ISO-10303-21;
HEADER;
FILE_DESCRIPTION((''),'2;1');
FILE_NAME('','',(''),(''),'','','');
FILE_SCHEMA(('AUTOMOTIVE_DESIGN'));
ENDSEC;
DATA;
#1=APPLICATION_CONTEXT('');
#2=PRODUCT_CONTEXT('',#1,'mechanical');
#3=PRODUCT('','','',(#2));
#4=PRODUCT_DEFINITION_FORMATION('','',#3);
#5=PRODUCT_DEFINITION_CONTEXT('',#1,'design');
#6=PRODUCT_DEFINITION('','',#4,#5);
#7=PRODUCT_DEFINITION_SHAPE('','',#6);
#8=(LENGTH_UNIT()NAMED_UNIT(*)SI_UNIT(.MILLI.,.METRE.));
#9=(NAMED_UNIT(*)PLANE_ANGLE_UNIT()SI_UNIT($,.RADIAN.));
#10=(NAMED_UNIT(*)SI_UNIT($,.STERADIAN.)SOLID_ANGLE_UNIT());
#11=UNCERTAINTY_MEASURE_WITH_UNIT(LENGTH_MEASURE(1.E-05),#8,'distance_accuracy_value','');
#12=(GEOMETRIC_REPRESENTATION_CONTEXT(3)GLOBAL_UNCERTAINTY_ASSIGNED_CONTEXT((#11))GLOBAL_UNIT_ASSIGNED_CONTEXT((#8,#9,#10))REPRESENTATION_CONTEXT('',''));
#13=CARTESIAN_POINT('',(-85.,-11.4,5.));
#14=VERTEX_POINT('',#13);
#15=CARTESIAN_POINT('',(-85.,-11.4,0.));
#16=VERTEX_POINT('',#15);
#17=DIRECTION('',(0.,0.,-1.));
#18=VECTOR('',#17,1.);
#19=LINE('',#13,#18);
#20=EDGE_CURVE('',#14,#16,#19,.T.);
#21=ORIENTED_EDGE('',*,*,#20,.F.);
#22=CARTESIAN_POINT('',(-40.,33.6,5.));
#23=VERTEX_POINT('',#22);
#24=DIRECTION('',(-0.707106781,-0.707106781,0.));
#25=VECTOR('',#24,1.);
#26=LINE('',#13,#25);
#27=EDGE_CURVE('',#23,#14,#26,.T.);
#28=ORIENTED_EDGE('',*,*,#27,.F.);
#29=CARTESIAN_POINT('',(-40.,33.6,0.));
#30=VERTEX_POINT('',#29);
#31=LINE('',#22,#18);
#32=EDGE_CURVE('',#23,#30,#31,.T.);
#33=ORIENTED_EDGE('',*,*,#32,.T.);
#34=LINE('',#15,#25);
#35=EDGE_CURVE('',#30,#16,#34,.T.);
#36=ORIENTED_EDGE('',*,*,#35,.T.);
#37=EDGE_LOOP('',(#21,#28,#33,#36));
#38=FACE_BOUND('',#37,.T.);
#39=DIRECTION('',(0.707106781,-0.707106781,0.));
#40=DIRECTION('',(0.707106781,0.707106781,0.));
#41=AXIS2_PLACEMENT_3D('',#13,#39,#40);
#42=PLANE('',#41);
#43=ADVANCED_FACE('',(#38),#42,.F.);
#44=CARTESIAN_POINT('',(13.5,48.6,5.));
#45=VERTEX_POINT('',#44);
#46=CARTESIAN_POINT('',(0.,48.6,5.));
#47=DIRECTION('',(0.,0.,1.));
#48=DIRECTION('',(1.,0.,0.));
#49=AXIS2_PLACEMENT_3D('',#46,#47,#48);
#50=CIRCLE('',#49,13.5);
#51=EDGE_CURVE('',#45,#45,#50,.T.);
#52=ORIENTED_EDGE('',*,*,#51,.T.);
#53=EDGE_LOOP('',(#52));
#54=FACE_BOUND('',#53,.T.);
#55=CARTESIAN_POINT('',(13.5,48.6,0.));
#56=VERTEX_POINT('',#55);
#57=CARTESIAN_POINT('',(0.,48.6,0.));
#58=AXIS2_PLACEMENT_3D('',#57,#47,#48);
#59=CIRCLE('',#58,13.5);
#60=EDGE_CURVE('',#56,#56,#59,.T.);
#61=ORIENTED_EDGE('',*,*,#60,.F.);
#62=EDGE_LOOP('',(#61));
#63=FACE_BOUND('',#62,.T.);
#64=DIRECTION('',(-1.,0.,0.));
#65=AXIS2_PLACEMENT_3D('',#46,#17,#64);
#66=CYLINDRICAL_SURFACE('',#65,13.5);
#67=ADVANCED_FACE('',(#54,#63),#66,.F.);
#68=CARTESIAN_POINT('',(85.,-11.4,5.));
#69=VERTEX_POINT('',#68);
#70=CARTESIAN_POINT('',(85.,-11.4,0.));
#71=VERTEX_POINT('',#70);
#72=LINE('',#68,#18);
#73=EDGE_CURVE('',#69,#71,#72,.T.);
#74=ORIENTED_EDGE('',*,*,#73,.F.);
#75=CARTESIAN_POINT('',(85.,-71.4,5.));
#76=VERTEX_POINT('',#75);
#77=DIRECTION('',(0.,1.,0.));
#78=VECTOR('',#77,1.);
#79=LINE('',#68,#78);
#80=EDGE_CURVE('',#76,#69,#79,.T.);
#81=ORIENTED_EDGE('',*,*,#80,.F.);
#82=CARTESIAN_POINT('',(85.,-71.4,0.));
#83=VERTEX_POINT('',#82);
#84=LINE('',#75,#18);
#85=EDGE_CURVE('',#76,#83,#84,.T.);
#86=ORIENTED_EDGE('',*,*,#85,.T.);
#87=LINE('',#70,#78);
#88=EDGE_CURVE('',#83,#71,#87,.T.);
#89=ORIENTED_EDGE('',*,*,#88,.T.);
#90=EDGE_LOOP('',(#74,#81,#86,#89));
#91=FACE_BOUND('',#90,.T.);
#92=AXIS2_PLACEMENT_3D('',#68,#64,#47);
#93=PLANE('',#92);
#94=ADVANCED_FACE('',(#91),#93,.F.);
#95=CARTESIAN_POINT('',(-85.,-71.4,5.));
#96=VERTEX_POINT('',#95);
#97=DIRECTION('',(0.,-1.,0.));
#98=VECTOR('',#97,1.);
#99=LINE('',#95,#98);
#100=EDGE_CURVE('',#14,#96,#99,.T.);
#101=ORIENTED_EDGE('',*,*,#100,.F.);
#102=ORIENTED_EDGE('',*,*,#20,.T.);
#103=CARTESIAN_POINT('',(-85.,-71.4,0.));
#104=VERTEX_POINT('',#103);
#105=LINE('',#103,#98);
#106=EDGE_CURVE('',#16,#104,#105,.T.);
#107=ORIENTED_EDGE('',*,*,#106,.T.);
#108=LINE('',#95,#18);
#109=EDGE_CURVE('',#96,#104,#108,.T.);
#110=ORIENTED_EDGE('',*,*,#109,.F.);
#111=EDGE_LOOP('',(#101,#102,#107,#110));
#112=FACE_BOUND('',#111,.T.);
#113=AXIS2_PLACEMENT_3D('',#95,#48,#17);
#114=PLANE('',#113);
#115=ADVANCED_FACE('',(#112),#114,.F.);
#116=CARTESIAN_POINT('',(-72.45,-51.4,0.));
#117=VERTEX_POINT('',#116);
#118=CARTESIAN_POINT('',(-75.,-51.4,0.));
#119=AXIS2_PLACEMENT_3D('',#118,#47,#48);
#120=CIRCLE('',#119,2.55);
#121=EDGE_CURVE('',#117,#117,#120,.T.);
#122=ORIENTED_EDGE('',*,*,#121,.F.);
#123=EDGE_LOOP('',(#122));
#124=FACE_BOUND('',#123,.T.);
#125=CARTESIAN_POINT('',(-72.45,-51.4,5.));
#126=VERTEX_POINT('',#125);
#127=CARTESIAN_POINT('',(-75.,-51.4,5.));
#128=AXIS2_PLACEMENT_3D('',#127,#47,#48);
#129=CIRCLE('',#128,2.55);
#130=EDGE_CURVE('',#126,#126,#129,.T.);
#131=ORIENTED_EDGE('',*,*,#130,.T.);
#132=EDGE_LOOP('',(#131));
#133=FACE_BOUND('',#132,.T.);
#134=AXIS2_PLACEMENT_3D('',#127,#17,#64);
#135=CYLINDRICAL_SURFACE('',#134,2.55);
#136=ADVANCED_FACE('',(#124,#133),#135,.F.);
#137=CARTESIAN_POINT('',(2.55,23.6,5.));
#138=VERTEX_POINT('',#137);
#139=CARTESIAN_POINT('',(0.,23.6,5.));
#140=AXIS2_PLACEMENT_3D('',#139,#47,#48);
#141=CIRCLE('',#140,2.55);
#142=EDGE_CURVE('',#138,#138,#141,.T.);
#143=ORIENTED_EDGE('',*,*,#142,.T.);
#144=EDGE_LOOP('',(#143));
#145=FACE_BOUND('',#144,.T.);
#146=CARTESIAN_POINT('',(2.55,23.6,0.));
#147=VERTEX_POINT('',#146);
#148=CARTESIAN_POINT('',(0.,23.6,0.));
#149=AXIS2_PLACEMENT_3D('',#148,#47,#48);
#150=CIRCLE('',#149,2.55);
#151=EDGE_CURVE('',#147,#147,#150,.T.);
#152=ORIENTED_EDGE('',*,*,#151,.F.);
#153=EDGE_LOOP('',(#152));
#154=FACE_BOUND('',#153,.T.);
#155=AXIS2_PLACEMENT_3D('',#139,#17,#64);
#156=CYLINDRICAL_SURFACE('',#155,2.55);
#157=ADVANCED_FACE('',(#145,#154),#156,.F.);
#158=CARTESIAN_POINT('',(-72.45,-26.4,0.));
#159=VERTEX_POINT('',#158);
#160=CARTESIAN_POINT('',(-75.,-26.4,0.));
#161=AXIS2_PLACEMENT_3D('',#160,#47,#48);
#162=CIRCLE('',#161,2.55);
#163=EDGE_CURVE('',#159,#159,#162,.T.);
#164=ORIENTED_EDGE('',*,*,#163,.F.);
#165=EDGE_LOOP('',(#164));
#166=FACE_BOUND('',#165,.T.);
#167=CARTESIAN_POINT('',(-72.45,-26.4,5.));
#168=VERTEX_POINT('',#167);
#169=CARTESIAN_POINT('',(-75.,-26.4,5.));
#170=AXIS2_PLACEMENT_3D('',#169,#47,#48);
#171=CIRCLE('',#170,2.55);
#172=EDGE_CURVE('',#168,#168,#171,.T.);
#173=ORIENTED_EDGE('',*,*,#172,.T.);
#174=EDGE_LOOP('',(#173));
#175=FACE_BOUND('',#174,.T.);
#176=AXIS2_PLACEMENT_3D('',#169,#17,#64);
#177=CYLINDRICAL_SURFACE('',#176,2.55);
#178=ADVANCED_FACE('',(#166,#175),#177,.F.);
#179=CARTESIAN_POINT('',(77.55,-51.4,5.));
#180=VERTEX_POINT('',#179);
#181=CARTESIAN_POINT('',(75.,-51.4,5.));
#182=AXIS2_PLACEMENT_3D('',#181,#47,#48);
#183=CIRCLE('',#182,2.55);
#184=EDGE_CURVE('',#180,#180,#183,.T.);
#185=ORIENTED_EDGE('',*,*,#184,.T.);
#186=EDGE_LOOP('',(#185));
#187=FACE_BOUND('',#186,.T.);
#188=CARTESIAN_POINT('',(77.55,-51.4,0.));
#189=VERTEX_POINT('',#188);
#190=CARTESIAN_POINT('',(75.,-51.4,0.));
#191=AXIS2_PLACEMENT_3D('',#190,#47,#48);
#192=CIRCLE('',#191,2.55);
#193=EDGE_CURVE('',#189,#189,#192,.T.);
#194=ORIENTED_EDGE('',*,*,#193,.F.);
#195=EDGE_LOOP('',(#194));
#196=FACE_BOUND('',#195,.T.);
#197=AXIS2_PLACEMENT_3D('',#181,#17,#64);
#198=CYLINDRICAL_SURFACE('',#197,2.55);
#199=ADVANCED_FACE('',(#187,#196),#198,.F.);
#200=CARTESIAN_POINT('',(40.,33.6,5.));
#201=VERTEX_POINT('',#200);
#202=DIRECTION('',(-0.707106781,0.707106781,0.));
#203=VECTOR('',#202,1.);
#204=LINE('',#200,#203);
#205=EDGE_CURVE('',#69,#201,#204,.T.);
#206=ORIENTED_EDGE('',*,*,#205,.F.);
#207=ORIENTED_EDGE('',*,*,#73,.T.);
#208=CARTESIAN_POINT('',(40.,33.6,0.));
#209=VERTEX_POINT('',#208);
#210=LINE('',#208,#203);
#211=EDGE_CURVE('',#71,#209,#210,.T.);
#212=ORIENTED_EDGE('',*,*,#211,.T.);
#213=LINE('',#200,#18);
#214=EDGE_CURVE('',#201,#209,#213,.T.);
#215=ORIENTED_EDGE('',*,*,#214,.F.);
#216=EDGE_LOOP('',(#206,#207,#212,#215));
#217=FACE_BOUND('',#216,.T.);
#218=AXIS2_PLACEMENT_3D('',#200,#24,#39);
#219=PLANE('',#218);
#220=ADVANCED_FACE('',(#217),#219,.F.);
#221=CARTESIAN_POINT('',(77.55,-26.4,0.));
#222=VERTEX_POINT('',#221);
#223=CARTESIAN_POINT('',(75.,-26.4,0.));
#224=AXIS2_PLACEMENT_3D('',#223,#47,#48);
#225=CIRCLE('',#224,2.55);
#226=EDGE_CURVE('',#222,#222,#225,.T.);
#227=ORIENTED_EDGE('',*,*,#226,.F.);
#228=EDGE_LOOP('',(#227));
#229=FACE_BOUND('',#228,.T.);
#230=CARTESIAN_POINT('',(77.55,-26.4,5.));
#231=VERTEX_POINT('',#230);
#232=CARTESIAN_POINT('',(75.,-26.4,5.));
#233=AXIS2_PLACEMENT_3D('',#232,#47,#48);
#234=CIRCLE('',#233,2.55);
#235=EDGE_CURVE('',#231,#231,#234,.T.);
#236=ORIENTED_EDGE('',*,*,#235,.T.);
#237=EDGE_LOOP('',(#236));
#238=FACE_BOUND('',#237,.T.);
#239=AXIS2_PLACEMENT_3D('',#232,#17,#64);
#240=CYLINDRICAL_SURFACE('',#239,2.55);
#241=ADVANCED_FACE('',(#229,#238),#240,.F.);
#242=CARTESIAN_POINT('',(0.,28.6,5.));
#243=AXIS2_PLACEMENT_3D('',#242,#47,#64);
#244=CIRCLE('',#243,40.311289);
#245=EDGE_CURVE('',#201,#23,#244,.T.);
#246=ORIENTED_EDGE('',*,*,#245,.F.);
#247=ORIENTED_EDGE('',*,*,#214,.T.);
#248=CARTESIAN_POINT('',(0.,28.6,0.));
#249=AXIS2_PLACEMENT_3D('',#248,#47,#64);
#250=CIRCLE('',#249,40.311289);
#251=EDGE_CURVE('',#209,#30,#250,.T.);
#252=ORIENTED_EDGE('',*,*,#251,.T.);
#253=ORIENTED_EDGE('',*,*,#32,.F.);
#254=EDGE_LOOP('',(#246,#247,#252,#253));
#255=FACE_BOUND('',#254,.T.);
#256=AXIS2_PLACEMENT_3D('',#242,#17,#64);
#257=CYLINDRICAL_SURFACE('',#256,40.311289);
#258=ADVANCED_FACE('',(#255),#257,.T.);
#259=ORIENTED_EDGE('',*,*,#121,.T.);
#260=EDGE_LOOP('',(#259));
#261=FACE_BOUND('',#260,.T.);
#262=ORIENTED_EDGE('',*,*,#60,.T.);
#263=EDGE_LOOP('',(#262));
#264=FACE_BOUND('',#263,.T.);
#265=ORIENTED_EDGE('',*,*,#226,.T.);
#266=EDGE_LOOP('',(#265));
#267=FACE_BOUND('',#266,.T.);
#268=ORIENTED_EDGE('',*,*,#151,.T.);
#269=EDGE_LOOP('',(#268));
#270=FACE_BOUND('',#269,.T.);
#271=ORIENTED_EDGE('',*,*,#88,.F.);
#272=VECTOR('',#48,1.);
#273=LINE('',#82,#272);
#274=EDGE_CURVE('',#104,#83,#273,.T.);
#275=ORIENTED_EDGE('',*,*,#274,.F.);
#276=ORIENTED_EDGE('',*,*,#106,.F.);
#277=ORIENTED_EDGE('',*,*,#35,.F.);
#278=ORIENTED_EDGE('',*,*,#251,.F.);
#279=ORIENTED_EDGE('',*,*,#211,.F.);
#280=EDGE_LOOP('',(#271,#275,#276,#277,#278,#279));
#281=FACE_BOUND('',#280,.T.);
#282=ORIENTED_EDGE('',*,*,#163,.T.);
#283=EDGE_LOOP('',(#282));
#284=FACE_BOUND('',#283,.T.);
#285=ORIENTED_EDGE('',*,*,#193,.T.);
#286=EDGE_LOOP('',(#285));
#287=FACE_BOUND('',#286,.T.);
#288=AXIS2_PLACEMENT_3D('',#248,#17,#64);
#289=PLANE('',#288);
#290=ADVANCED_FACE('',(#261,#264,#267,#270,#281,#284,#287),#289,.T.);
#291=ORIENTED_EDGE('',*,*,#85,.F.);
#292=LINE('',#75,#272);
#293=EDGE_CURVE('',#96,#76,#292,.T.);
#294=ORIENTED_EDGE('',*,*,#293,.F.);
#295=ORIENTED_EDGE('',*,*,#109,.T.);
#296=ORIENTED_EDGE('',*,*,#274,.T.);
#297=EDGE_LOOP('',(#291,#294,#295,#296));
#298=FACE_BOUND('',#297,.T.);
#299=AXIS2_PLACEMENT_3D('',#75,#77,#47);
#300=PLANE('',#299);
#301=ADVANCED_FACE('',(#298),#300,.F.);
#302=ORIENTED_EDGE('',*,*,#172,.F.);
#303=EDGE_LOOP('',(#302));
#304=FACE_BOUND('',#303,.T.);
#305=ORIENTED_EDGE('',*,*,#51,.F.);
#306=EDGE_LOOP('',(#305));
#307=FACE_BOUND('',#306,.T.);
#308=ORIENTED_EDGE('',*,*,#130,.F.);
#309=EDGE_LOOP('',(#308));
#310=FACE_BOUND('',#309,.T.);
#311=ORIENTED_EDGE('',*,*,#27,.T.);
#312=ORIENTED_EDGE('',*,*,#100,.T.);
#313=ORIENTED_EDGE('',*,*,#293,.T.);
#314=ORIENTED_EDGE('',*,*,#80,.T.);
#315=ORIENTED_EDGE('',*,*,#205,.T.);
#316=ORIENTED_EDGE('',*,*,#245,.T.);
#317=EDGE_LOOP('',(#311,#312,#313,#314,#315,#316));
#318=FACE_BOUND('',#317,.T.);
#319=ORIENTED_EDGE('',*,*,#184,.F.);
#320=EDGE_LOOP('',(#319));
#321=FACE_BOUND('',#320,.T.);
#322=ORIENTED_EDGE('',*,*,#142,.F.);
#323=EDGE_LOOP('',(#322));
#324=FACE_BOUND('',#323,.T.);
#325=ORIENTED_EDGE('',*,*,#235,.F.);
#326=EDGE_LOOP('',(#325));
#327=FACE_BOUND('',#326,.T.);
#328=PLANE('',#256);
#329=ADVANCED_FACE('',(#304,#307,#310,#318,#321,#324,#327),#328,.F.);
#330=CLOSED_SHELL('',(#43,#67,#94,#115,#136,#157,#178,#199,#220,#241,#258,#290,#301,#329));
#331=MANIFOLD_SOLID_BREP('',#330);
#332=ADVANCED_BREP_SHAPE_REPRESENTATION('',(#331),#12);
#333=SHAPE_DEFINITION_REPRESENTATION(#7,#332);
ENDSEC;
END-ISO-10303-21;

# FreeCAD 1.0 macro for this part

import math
import FreeCAD as App
import Part
import Sketcher

doc = App.newDocument("Part")
params = doc.addObject("Spreadsheet::Sheet", "Params")
for row, (alias, value) in enumerate([
    ("sketch1_diameter", "27 mm"),
    ("sketch1_diameter2", "5.1 mm"),
    ("sketch1_width", "170 mm"),
    ("sketch1_height", "60 mm"),
    ("pad1_length", "5 mm"),
], start=1):
    params.set(f"A{row}", alias)
    params.set(f"B{row}", "=" + value)
    params.setAlias(f"B{row}", alias)

body = doc.addObject("PartDesign::Body", "Body")

sketch1 = body.newObject("Sketcher::SketchObject", "Sketch")
sketch1.AttachmentSupport = (doc.getObject("XY_Plane"), [""])
sketch1.MapMode = "FlatFace"
sketch1.addGeometry(Part.LineSegment(App.Vector(-85, -11.4, 0), App.Vector(-85, -71.4, 0)), False)
sketch1.addGeometry(Part.LineSegment(App.Vector(-85, -71.4, 0), App.Vector(85, -71.4, 0)), False)
sketch1.addGeometry(Part.LineSegment(App.Vector(85, -71.4, 0), App.Vector(85, -11.4, 0)), False)
sketch1.addGeometry(Part.LineSegment(App.Vector(85, -11.4, 0), App.Vector(40, 33.6, 0)), False)
sketch1.addGeometry(Part.ArcOfCircle(Part.Circle(App.Vector(0, 28.6, 0), App.Vector(0, 0, 1), 40.3), math.radians(7), math.radians(173)), False)
sketch1.addGeometry(Part.LineSegment(App.Vector(-40, 33.6, 0), App.Vector(-85, -11.4, 0)), False)
sketch1.addGeometry(Part.Circle(App.Vector(75, -51.4, 0), App.Vector(0, 0, 1), 2.5), False)
sketch1.addGeometry(Part.Circle(App.Vector(75, -26.4, 0), App.Vector(0, 0, 1), 2.5), False)
sketch1.addGeometry(Part.Circle(App.Vector(-75, -51.4, 0), App.Vector(0, 0, 1), 2.5), False)
sketch1.addGeometry(Part.Circle(App.Vector(-75, -26.4, 0), App.Vector(0, 0, 1), 2.5), False)
sketch1.addGeometry(Part.Circle(App.Vector(0, 23.6, 0), App.Vector(0, 0, 1), 2.5), False)
sketch1.addGeometry(Part.Circle(App.Vector(0, 48.6, 0), App.Vector(0, 0, 1), 13.5), False)
sketch1.addConstraint(Sketcher.Constraint("Coincident", 0, 2, 1, 1))
sketch1.addConstraint(Sketcher.Constraint("Coincident", 1, 2, 2, 1))
sketch1.addConstraint(Sketcher.Constraint("Coincident", 2, 2, 3, 1))
sketch1.addConstraint(Sketcher.Constraint("Coincident", 3, 2, 4, 1))
sketch1.addConstraint(Sketcher.Constraint("Coincident", 4, 2, 5, 1))
sketch1.addConstraint(Sketcher.Constraint("Coincident", 5, 2, 0, 1))
sketch1.addConstraint(Sketcher.Constraint("Vertical", 0))
sketch1.addConstraint(Sketcher.Constraint("Horizontal", 1))
sketch1.addConstraint(Sketcher.Constraint("Vertical", 2))
sketch1.addConstraint(Sketcher.Constraint("Equal", 6, 7))
sketch1.addConstraint(Sketcher.Constraint("Equal", 7, 8))
sketch1.addConstraint(Sketcher.Constraint("Equal", 8, 9))
sketch1.addConstraint(Sketcher.Constraint("Equal", 9, 10))
sketch1.addConstraint(Sketcher.Constraint("Symmetric", 6, 3, 8, 3, -2))
sketch1.addConstraint(Sketcher.Constraint("Symmetric", 7, 3, 9, 3, -2))
sketch1.addConstraint(Sketcher.Constraint("Symmetric", 3, 2, 4, 2, -2))
sketch1.addConstraint(Sketcher.Constraint("Symmetric", 2, 2, 5, 2, -2))
sketch1.addConstraint(Sketcher.Constraint("PointOnObject", 10, 3, -2))
sketch1.addConstraint(Sketcher.Constraint("PointOnObject", 11, 3, -2))
sketch1.addConstraint(Sketcher.Constraint("Perpendicular", 3, 5))
sketch1.addConstraint(Sketcher.Constraint("Vertical", 6, 3, 7, 3))
sketch1.addConstraint(Sketcher.Constraint("Diameter", 11, 27.0))
sketch1.addConstraint(Sketcher.Constraint("Diameter", 6, 5.1))
sketch1.addConstraint(Sketcher.Constraint("DistanceX", 1, 1, 1, 2, 170.0))
sketch1.addConstraint(Sketcher.Constraint("DistanceY", 0, 2, 0, 1, 60.0))
sketch1.addConstraint(Sketcher.Constraint("DistanceX", -1, 1, 6, 3, 75.0))
sketch1.addConstraint(Sketcher.Constraint("DistanceX", -1, 1, 3, 2, 40.0))
sketch1.addConstraint(Sketcher.Constraint("DistanceY", 6, 3, 4, 3, 80.0))
sketch1.addConstraint(Sketcher.Constraint("DistanceY", 6, 3, 7, 3, 25.0))
sketch1.addConstraint(Sketcher.Constraint("DistanceY", 10, 3, 4, 3, 5.0))
sketch1.addConstraint(Sketcher.Constraint("DistanceY", 4, 3, 11, 3, 20.0))
sketch1.addConstraint(Sketcher.Constraint("DistanceY", 0, 2, 8, 3, 20.0))
sketch1.addConstraint(Sketcher.Constraint("DistanceY", -1, 1, 4, 3, 28.6))
sketch1.setExpression("Constraints[21]", "Params.sketch1_diameter")
sketch1.setExpression("Constraints[22]", "Params.sketch1_diameter2")
sketch1.setExpression("Constraints[23]", "Params.sketch1_width")
sketch1.setExpression("Constraints[24]", "Params.sketch1_height")
pad1 = body.newObject("PartDesign::Pad", "Pad")
pad1.Profile = sketch1
pad1.setExpression("Length", "Params.pad1_length")

doc.recompute()
